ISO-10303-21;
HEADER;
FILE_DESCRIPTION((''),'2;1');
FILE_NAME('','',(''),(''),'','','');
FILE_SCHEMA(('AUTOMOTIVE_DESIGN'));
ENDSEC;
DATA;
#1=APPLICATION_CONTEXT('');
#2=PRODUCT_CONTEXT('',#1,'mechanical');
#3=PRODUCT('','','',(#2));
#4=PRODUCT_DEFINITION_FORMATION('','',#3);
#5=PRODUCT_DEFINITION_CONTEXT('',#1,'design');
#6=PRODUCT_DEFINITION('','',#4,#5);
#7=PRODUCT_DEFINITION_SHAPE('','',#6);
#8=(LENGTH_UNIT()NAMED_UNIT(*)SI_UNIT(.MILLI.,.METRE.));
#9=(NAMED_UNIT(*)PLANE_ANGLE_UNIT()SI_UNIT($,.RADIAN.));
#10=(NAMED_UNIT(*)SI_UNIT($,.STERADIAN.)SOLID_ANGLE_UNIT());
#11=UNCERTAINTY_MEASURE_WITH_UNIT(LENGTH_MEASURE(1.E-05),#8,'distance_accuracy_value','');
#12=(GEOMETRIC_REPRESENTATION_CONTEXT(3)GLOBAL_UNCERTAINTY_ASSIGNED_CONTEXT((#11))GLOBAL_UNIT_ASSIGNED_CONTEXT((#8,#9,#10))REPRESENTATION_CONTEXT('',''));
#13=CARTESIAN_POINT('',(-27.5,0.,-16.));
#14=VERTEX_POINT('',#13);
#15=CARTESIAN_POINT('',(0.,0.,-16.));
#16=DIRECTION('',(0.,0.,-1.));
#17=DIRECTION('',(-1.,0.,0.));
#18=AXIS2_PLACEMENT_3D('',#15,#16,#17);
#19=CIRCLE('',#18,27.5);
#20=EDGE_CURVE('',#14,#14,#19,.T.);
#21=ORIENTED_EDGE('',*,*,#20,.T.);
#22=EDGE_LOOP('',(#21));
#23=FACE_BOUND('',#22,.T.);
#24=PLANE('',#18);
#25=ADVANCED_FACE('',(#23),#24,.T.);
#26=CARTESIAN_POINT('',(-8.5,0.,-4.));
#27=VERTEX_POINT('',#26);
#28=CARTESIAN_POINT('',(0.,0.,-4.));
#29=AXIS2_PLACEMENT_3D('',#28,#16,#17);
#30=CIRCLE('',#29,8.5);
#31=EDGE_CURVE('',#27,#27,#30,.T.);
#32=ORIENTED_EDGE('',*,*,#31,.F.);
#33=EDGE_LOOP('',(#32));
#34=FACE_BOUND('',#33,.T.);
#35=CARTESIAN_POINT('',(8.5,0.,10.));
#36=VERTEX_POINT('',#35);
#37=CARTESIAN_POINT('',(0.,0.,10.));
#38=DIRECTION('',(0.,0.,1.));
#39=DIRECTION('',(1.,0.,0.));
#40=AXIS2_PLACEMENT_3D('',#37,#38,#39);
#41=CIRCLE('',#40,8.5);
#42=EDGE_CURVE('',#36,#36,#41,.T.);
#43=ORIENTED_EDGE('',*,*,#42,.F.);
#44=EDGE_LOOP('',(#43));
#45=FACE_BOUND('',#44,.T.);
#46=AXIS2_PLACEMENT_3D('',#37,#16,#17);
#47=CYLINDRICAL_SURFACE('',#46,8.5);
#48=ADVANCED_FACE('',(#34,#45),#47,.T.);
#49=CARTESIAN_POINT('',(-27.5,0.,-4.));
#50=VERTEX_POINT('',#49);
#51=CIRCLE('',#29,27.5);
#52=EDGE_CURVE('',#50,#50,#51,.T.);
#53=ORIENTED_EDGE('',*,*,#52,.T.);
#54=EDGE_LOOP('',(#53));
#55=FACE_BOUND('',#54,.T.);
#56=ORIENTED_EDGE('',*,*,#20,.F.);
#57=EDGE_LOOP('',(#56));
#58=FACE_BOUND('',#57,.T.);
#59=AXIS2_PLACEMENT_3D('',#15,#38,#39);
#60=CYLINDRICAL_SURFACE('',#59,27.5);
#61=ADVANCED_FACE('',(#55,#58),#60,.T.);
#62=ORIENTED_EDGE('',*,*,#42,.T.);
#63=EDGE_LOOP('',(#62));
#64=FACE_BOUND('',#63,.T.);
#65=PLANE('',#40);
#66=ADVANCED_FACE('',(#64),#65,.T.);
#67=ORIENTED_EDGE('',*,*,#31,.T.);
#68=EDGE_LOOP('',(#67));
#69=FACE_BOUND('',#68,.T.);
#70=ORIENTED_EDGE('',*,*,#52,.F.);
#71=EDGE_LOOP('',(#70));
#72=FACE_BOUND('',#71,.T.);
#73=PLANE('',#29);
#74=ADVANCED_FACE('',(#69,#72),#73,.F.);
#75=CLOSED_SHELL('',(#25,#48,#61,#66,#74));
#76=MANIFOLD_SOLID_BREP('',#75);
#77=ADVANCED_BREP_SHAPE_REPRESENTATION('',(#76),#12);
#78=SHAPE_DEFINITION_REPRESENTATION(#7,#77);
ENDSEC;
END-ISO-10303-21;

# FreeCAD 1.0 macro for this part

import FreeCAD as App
import Part
import Sketcher

doc = App.newDocument("Part")
body = doc.addObject("PartDesign::Body", "Body")

sketch1 = body.newObject("Sketcher::SketchObject", "Sketch")
sketch1.AttachmentSupport = (doc.getObject("XY_Plane"), [""])
sketch1.MapMode = "FlatFace"
sketch1.addGeometry(Part.Circle(App.Vector(0, 0, 0), App.Vector(0, 0, 1), 8.5), False)
sketch1.addConstraint([
    Sketcher.Constraint("Coincident", 0, 3, -1, 1),
    Sketcher.Constraint("Diameter", 0, 17.0),
])
pad1 = body.newObject("PartDesign::Pad", "Pad")
pad1.Profile = sketch1
pad1.Length = 20
pad1.Midplane = True

sketch2 = body.newObject("Sketcher::SketchObject", "Sketch001")
sketch2.AttachmentSupport = (doc.getObject("XY_Plane"), [""])
sketch2.MapMode = "FlatFace"
sketch2.AttachmentOffset = App.Placement(App.Vector(0, 0, -10), App.Rotation())
sketch2.addGeometry(Part.Circle(App.Vector(0, 0, 0), App.Vector(0, 0, 1), 27.5), False)
sketch2.addConstraint([
    Sketcher.Constraint("Coincident", 0, 3, -1, 1),
    Sketcher.Constraint("Diameter", 0, 55.0),
])
pad2 = body.newObject("PartDesign::Pad", "Pad001")
pad2.Profile = sketch2
pad2.Length = 12
pad2.Midplane = True

doc.recompute()
